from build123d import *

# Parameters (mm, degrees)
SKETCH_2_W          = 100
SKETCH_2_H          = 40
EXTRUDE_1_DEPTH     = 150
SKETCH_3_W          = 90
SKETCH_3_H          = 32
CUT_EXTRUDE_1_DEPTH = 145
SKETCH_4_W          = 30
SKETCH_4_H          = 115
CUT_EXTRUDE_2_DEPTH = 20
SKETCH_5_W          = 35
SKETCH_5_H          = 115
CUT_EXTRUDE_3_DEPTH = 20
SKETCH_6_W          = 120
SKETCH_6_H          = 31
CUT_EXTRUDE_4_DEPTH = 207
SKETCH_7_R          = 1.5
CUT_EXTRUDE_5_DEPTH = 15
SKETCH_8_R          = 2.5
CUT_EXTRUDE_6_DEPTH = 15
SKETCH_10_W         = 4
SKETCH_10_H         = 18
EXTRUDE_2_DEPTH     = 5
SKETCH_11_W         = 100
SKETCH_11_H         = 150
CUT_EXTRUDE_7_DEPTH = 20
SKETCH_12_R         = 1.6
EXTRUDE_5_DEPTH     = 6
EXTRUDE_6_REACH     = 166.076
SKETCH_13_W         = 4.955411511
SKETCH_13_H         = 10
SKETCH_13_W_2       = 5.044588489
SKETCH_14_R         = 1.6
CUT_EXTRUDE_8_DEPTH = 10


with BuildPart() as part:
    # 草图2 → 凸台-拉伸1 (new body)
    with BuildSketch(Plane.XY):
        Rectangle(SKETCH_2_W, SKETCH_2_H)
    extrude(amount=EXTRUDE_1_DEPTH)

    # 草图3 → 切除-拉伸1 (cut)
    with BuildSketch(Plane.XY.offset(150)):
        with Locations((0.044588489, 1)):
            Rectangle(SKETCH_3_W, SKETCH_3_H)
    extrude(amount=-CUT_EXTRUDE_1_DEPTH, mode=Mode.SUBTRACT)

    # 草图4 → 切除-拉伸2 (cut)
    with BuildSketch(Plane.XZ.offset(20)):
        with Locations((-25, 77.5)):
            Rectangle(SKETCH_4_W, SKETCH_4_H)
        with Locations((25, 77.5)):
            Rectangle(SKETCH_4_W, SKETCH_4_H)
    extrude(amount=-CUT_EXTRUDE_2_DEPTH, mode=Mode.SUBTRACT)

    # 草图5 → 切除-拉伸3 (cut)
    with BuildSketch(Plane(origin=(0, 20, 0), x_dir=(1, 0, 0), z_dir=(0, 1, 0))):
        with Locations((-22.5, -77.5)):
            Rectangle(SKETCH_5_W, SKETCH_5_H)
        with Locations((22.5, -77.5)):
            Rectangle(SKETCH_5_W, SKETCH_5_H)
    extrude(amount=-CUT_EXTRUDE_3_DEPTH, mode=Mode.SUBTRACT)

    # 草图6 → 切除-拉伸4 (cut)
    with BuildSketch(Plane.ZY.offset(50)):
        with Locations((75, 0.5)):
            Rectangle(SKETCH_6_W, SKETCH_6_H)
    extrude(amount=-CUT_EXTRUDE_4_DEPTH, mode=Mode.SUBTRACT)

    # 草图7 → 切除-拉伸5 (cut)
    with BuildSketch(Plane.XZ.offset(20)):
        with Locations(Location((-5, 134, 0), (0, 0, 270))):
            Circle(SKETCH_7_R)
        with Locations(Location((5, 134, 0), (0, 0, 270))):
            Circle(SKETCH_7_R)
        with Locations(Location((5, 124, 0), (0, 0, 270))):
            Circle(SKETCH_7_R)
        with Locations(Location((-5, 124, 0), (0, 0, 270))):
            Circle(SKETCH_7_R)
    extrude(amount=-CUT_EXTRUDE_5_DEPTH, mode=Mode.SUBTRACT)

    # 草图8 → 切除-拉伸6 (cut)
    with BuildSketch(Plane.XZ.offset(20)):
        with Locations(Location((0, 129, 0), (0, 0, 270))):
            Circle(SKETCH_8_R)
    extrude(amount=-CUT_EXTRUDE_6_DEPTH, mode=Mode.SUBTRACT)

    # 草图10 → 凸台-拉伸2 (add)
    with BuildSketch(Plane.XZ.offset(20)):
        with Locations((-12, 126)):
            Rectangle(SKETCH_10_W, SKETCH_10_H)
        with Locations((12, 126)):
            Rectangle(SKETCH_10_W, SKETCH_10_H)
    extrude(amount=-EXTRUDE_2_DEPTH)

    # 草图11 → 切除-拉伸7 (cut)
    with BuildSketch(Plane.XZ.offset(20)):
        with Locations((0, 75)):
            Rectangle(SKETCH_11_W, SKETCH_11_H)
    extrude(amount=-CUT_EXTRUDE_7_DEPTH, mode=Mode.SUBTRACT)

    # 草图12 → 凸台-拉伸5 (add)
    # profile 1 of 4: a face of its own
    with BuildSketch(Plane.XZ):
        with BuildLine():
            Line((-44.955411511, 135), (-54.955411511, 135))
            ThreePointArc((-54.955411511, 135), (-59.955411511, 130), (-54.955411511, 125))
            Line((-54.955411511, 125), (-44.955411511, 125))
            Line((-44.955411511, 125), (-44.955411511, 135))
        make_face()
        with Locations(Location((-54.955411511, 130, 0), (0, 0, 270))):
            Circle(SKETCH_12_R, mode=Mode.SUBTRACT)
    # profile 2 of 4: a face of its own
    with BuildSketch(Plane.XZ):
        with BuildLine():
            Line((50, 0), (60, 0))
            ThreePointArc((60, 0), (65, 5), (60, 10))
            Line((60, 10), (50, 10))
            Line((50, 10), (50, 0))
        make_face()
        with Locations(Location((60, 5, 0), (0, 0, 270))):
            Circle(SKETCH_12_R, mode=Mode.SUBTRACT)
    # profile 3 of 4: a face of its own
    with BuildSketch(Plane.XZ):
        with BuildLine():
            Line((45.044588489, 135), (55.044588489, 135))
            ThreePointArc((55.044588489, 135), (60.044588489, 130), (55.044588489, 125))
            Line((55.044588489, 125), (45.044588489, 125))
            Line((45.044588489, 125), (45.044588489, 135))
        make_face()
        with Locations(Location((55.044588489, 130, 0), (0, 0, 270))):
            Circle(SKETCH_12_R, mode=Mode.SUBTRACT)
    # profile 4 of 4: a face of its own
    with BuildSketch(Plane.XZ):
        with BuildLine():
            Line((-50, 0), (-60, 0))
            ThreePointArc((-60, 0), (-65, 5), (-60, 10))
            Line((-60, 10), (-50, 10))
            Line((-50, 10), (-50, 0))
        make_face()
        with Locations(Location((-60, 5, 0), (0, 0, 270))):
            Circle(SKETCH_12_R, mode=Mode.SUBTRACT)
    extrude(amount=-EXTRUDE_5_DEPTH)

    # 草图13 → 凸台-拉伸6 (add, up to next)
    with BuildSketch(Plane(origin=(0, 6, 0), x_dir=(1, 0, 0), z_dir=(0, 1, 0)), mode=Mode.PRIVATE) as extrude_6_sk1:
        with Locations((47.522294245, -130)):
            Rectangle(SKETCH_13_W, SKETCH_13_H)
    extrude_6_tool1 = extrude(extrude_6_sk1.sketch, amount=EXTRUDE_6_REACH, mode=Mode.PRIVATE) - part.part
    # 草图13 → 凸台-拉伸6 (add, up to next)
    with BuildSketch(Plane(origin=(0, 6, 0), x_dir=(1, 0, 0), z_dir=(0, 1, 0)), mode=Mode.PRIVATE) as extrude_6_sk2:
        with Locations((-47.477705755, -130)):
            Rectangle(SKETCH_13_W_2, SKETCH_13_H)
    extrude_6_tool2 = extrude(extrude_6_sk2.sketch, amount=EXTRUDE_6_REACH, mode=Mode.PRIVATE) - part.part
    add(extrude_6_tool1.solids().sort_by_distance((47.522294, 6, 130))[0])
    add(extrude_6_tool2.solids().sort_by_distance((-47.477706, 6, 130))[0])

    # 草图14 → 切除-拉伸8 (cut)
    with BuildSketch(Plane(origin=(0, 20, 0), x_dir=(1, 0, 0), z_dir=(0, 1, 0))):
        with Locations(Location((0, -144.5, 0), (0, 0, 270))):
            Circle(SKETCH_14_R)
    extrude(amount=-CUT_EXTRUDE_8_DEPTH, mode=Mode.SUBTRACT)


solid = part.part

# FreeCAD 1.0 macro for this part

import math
import FreeCAD as App
import Part
import Sketcher
from FreeCAD import Vector
Q = App.Units.Quantity

doc = App.newDocument("Part")
body = doc.addObject("PartDesign::Body", "Body")

# Sketch on XY plane
sketch1 = doc.addObject("Sketcher::SketchObject", "Sketch")
body.addObject(sketch1)
sketch1.AttachmentSupport = (doc.XY_Plane, [""])
sketch1.MapMode = "FlatFace"
sketch1.addGeometry([
    Part.LineSegment(Vector(-50, 20, 0), Vector(-50, -20, 0)),
    Part.LineSegment(Vector(-50, -20, 0), Vector(50, -20, 0)),
    Part.LineSegment(Vector(50, -20, 0), Vector(50, 20, 0)),
    Part.LineSegment(Vector(50, 20, 0), Vector(-50, 20, 0)),
], False)
sketch1.addConstraint([
    Sketcher.Constraint("Coincident", 0, 2, 1, 1),
    Sketcher.Constraint("Coincident", 1, 2, 2, 1),
    Sketcher.Constraint("Coincident", 2, 2, 3, 1),
    Sketcher.Constraint("Coincident", 3, 2, 0, 1),
    Sketcher.Constraint("Vertical", 0),
    Sketcher.Constraint("Horizontal", 1),
    Sketcher.Constraint("Vertical", 2),
    Sketcher.Constraint("Horizontal", 3),
    Sketcher.Constraint("Symmetric", 0, 2, 2, 2, -1, 1),
    Sketcher.Constraint("DistanceX", 1, 1, 1, 2, Q("100 mm")),
    Sketcher.Constraint("DistanceY", 0, 2, 0, 1, Q("40 mm")),
])
pad1 = doc.addObject("PartDesign::Pad", "Pad")
body.addObject(pad1)
pad1.Profile = sketch1
pad1.Length = 150

# Sketch on XY plane
sketch2 = doc.addObject("Sketcher::SketchObject", "Sketch001")
body.addObject(sketch2)
sketch2.AttachmentSupport = (doc.XY_Plane, [""])
sketch2.MapMode = "FlatFace"
sketch2.AttachmentOffset = App.Placement(Vector(0, 0, 150), App.Rotation())
sketch2.addGeometry([
    Part.LineSegment(Vector(-45, 17, 0), Vector(-45, -15, 0)),
    Part.LineSegment(Vector(-45, -15, 0), Vector(45, -15, 0)),
    Part.LineSegment(Vector(45, -15, 0), Vector(45, 17, 0)),
    Part.LineSegment(Vector(45, 17, 0), Vector(-45, 17, 0)),
], False)
sketch2.addConstraint([
    Sketcher.Constraint("Coincident", 0, 2, 1, 1),
    Sketcher.Constraint("Coincident", 1, 2, 2, 1),
    Sketcher.Constraint("Coincident", 2, 2, 3, 1),
    Sketcher.Constraint("Coincident", 3, 2, 0, 1),
    Sketcher.Constraint("Vertical", 0),
    Sketcher.Constraint("Horizontal", 1),
    Sketcher.Constraint("Vertical", 2),
    Sketcher.Constraint("Horizontal", 3),
    Sketcher.Constraint("DistanceX", 1, 1, 1, 2, Q("90 mm")),
    Sketcher.Constraint("DistanceY", 0, 2, 0, 1, Q("32 mm")),
    Sketcher.Constraint("DistanceY", 0, 2, -1, 1, Q("15 mm")),
    Sketcher.Constraint("DistanceX", 0, 2, -1, 1, Q("44.955412 mm")),
])
pocket1 = doc.addObject("PartDesign::Pocket", "Pocket")
body.addObject(pocket1)
pocket1.Profile = sketch2
pocket1.Length = 145

# Sketch on XZ plane
sketch3 = doc.addObject("Sketcher::SketchObject", "Sketch002")
body.addObject(sketch3)
sketch3.AttachmentSupport = (doc.XZ_Plane, [""])
sketch3.MapMode = "FlatFace"
sketch3.AttachmentOffset = App.Placement(Vector(0, 0, 20), App.Rotation())
sketch3.addGeometry([
    Part.LineSegment(Vector(-40, 135, 0), Vector(-40, 20, 0)),  # 0
    Part.LineSegment(Vector(-40, 20, 0), Vector(-10, 20, 0)),  # 1
    Part.LineSegment(Vector(-10, 20, 0), Vector(-10, 135, 0)),  # 2
    Part.LineSegment(Vector(-10, 135, 0), Vector(-40, 135, 0)),  # 3
    Part.LineSegment(Vector(10, 135, 0), Vector(10, 20, 0)),  # 4
    Part.LineSegment(Vector(10, 20, 0), Vector(40, 20, 0)),  # 5
    Part.LineSegment(Vector(40, 20, 0), Vector(40, 135, 0)),  # 6
    Part.LineSegment(Vector(40, 135, 0), Vector(10, 135, 0)),  # 7
], False)
sketch3.addConstraint([
    Sketcher.Constraint("Coincident", 0, 2, 1, 1),
    Sketcher.Constraint("Coincident", 1, 2, 2, 1),
    Sketcher.Constraint("Coincident", 2, 2, 3, 1),
    Sketcher.Constraint("Coincident", 3, 2, 0, 1),
    Sketcher.Constraint("Coincident", 4, 2, 5, 1),
    Sketcher.Constraint("Coincident", 5, 2, 6, 1),
    Sketcher.Constraint("Coincident", 6, 2, 7, 1),
    Sketcher.Constraint("Coincident", 7, 2, 4, 1),
    Sketcher.Constraint("Vertical", 0),
    Sketcher.Constraint("Horizontal", 1),
    Sketcher.Constraint("Vertical", 2),
    Sketcher.Constraint("Horizontal", 3),
    Sketcher.Constraint("Vertical", 4),
    Sketcher.Constraint("Horizontal", 5),
    Sketcher.Constraint("Vertical", 6),
    Sketcher.Constraint("Horizontal", 7),
    Sketcher.Constraint("Symmetric", 1, 2, 4, 2, -2),
    Sketcher.Constraint("Symmetric", 3, 2, 6, 2, -2),
    Sketcher.Constraint("DistanceX", 1, 1, 1, 2, Q("30 mm")),
    Sketcher.Constraint("DistanceY", 0, 2, 0, 1, Q("115 mm")),
    Sketcher.Constraint("DistanceX", 0, 2, -1, 1, Q("40 mm")),
    Sketcher.Constraint("DistanceY", -1, 1, 0, 2, Q("20 mm")),
])
pocket2 = doc.addObject("PartDesign::Pocket", "Pocket001")
body.addObject(pocket2)
pocket2.Profile = sketch3
pocket2.Length = 20

# Sketch on XZ plane
sketch4 = doc.addObject("Sketcher::SketchObject", "Sketch003")
body.addObject(sketch4)
sketch4.AttachmentSupport = (doc.XZ_Plane, [""])
sketch4.MapMode = "FlatFace"
sketch4.AttachmentOffset = App.Placement(Vector(0, 0, -20), App.Rotation())
sketch4.addGeometry([
    Part.LineSegment(Vector(-40, 20, 0), Vector(-40, 135, 0)),  # 0
    Part.LineSegment(Vector(-40, 135, 0), Vector(-5, 135, 0)),  # 1
    Part.LineSegment(Vector(-5, 135, 0), Vector(-5, 20, 0)),  # 2
    Part.LineSegment(Vector(-5, 20, 0), Vector(-40, 20, 0)),  # 3
    Part.LineSegment(Vector(5, 20, 0), Vector(5, 135, 0)),  # 4
    Part.LineSegment(Vector(5, 135, 0), Vector(40, 135, 0)),  # 5
    Part.LineSegment(Vector(40, 135, 0), Vector(40, 20, 0)),  # 6
    Part.LineSegment(Vector(40, 20, 0), Vector(5, 20, 0)),  # 7
], False)
sketch4.addConstraint([
    Sketcher.Constraint("Coincident", 0, 2, 1, 1),
    Sketcher.Constraint("Coincident", 1, 2, 2, 1),
    Sketcher.Constraint("Coincident", 2, 2, 3, 1),
    Sketcher.Constraint("Coincident", 3, 2, 0, 1),
    Sketcher.Constraint("Coincident", 4, 2, 5, 1),
    Sketcher.Constraint("Coincident", 5, 2, 6, 1),
    Sketcher.Constraint("Coincident", 6, 2, 7, 1),
    Sketcher.Constraint("Coincident", 7, 2, 4, 1),
    Sketcher.Constraint("Vertical", 0),
    Sketcher.Constraint("Horizontal", 1),
    Sketcher.Constraint("Vertical", 2),
    Sketcher.Constraint("Horizontal", 3),
    Sketcher.Constraint("Vertical", 4),
    Sketcher.Constraint("Horizontal", 5),
    Sketcher.Constraint("Vertical", 6),
    Sketcher.Constraint("Horizontal", 7),
    Sketcher.Constraint("Symmetric", 1, 2, 4, 2, -2),
    Sketcher.Constraint("Symmetric", 3, 2, 6, 2, -2),
    Sketcher.Constraint("DistanceX", 1, 1, 1, 2, Q("35 mm")),
    Sketcher.Constraint("DistanceY", 0, 1, 0, 2, Q("115 mm")),
    Sketcher.Constraint("DistanceX", 0, 2, -1, 1, Q("40 mm")),
    Sketcher.Constraint("DistanceY", -1, 1, 0, 2, Q("135 mm")),
])
pocket3 = doc.addObject("PartDesign::Pocket", "Pocket002")
body.addObject(pocket3)
pocket3.Profile = sketch4
pocket3.Length = 20
pocket3.Reversed = True

# Sketch on YZ plane
sketch5 = doc.addObject("Sketcher::SketchObject", "Sketch004")
body.addObject(sketch5)
sketch5.AttachmentSupport = (doc.YZ_Plane, [""])
sketch5.MapMode = "FlatFace"
sketch5.AttachmentOffset = App.Placement(Vector(0, 0, -50), App.Rotation())
sketch5.addGeometry([
    Part.LineSegment(Vector(16, 15, 0), Vector(-15, 15, 0)),
    Part.LineSegment(Vector(-15, 15, 0), Vector(-15, 135, 0)),
    Part.LineSegment(Vector(-15, 135, 0), Vector(16, 135, 0)),
    Part.LineSegment(Vector(16, 135, 0), Vector(16, 15, 0)),
], False)
sketch5.addConstraint([
    Sketcher.Constraint("Coincident", 0, 2, 1, 1),
    Sketcher.Constraint("Coincident", 1, 2, 2, 1),
    Sketcher.Constraint("Coincident", 2, 2, 3, 1),
    Sketcher.Constraint("Coincident", 3, 2, 0, 1),
    Sketcher.Constraint("Horizontal", 0),
    Sketcher.Constraint("Vertical", 1),
    Sketcher.Constraint("Horizontal", 2),
    Sketcher.Constraint("Vertical", 3),
    Sketcher.Constraint("DistanceX", 0, 2, 0, 1, Q("31 mm")),
    Sketcher.Constraint("DistanceY", 1, 1, 1, 2, Q("120 mm")),
    Sketcher.Constraint("DistanceX", 0, 2, -1, 1, Q("15 mm")),
    Sketcher.Constraint("DistanceY", -1, 1, 0, 2, Q("15 mm")),
])
pocket4 = doc.addObject("PartDesign::Pocket", "Pocket003")
body.addObject(pocket4)
pocket4.Profile = sketch5
pocket4.Length = 207
pocket4.Reversed = True

# Sketch on XZ plane
sketch6 = doc.addObject("Sketcher::SketchObject", "Sketch005")
body.addObject(sketch6)
sketch6.AttachmentSupport = (doc.XZ_Plane, [""])
sketch6.MapMode = "FlatFace"
sketch6.AttachmentOffset = App.Placement(Vector(0, 0, 20), App.Rotation())
sketch6.addGeometry([
    Part.Circle(Vector(-5, 134, 0), Vector(0, 0, 1), 1.5),
    Part.Circle(Vector(5, 134, 0), Vector(0, 0, 1), 1.5),
    Part.Circle(Vector(5, 124, 0), Vector(0, 0, 1), 1.5),
    Part.Circle(Vector(-5, 124, 0), Vector(0, 0, 1), 1.5),
], False)
sketch6.addConstraint([
    Sketcher.Constraint("Equal", 0, 1),
    Sketcher.Constraint("Equal", 1, 2),
    Sketcher.Constraint("Equal", 2, 3),
    Sketcher.Constraint("Symmetric", 0, 3, 1, 3, -2),
    Sketcher.Constraint("Symmetric", 2, 3, 3, 3, -2),
    Sketcher.Constraint("Vertical", 1, 3, 2, 3),
    Sketcher.Constraint("Diameter", 0, Q("3 mm")),
    Sketcher.Constraint("DistanceX", 0, 3, -1, 1, Q("5 mm")),
    Sketcher.Constraint("DistanceY", -1, 1, 0, 3, Q("134 mm")),
    Sketcher.Constraint("DistanceY", -1, 1, 2, 3, Q("124 mm")),
])
pocket5 = doc.addObject("PartDesign::Pocket", "Pocket004")
body.addObject(pocket5)
pocket5.Profile = sketch6
pocket5.Length = 15

# Sketch on XZ plane
sketch7 = doc.addObject("Sketcher::SketchObject", "Sketch006")
body.addObject(sketch7)
sketch7.AttachmentSupport = (doc.XZ_Plane, [""])
sketch7.MapMode = "FlatFace"
sketch7.AttachmentOffset = App.Placement(Vector(0, 0, 20), App.Rotation())
sketch7.addGeometry(Part.Circle(Vector(0, 129, 0), Vector(0, 0, 1), 2.5), False)
sketch7.addConstraint([
    Sketcher.Constraint("PointOnObject", 0, 3, -2),
    Sketcher.Constraint("Diameter", 0, Q("5 mm")),
    Sketcher.Constraint("DistanceY", -1, 1, 0, 3, Q("129 mm")),
])
pocket6 = doc.addObject("PartDesign::Pocket", "Pocket005")
body.addObject(pocket6)
pocket6.Profile = sketch7
pocket6.Length = 15

# Sketch on XZ plane
sketch8 = doc.addObject("Sketcher::SketchObject", "Sketch007")
body.addObject(sketch8)
sketch8.AttachmentSupport = (doc.XZ_Plane, [""])
sketch8.MapMode = "FlatFace"
sketch8.AttachmentOffset = App.Placement(Vector(0, 0, 20), App.Rotation())
sketch8.addGeometry([
    Part.LineSegment(Vector(-14, 135, 0), Vector(-14, 117, 0)),  # 0
    Part.LineSegment(Vector(-14, 117, 0), Vector(-10, 117, 0)),  # 1
    Part.LineSegment(Vector(-10, 117, 0), Vector(-10, 135, 0)),  # 2
    Part.LineSegment(Vector(-10, 135, 0), Vector(-14, 135, 0)),  # 3
    Part.LineSegment(Vector(10, 135, 0), Vector(10, 117, 0)),  # 4
    Part.LineSegment(Vector(10, 117, 0), Vector(14, 117, 0)),  # 5
    Part.LineSegment(Vector(14, 117, 0), Vector(14, 135, 0)),  # 6
    Part.LineSegment(Vector(14, 135, 0), Vector(10, 135, 0)),  # 7
], False)
sketch8.addConstraint([
    Sketcher.Constraint("Coincident", 0, 2, 1, 1),
    Sketcher.Constraint("Coincident", 1, 2, 2, 1),
    Sketcher.Constraint("Coincident", 2, 2, 3, 1),
    Sketcher.Constraint("Coincident", 3, 2, 0, 1),
    Sketcher.Constraint("Coincident", 4, 2, 5, 1),
    Sketcher.Constraint("Coincident", 5, 2, 6, 1),
    Sketcher.Constraint("Coincident", 6, 2, 7, 1),
    Sketcher.Constraint("Coincident", 7, 2, 4, 1),
    Sketcher.Constraint("Vertical", 0),
    Sketcher.Constraint("Horizontal", 1),
    Sketcher.Constraint("Vertical", 2),
    Sketcher.Constraint("Horizontal", 3),
    Sketcher.Constraint("Vertical", 4),
    Sketcher.Constraint("Horizontal", 5),
    Sketcher.Constraint("Vertical", 6),
    Sketcher.Constraint("Horizontal", 7),
    Sketcher.Constraint("Symmetric", 1, 2, 4, 2, -2),
    Sketcher.Constraint("Symmetric", 3, 2, 6, 2, -2),
    Sketcher.Constraint("DistanceX", 1, 1, 1, 2, Q("4 mm")),
    Sketcher.Constraint("DistanceY", 0, 2, 0, 1, Q("18 mm")),
    Sketcher.Constraint("DistanceX", 0, 2, -1, 1, Q("14 mm")),
    Sketcher.Constraint("DistanceY", -1, 1, 0, 2, Q("117 mm")),
])
pad2 = doc.addObject("PartDesign::Pad", "Pad001")
body.addObject(pad2)
pad2.Profile = sketch8
pad2.Length = 5
pad2.Reversed = True

# Sketch on XZ plane
sketch9 = doc.addObject("Sketcher::SketchObject", "Sketch008")
body.addObject(sketch9)
sketch9.AttachmentSupport = (doc.XZ_Plane, [""])
sketch9.MapMode = "FlatFace"
sketch9.AttachmentOffset = App.Placement(Vector(0, 0, 20), App.Rotation())
sketch9.addGeometry([
    Part.LineSegment(Vector(-50, 150, 0), Vector(-50, 0, 0)),
    Part.LineSegment(Vector(-50, 0, 0), Vector(50, 0, 0)),
    Part.LineSegment(Vector(50, 0, 0), Vector(50, 150, 0)),
    Part.LineSegment(Vector(50, 150, 0), Vector(-50, 150, 0)),
], False)
sketch9.addConstraint([
    Sketcher.Constraint("Coincident", 0, 2, 1, 1),
    Sketcher.Constraint("Coincident", 1, 2, 2, 1),
    Sketcher.Constraint("Coincident", 2, 2, 3, 1),
    Sketcher.Constraint("Coincident", 3, 2, 0, 1),
    Sketcher.Constraint("Vertical", 0),
    Sketcher.Constraint("Horizontal", 1),
    Sketcher.Constraint("Vertical", 2),
    Sketcher.Constraint("Horizontal", 3),
    Sketcher.Constraint("Symmetric", 0, 2, 1, 2, -1, 1),
    Sketcher.Constraint("DistanceX", 1, 1, 1, 2, Q("100 mm")),
    Sketcher.Constraint("DistanceY", 0, 2, 0, 1, Q("150 mm")),
])
pocket7 = doc.addObject("PartDesign::Pocket", "Pocket006")
body.addObject(pocket7)
pocket7.Profile = sketch9
pocket7.Length = 20

# Sketch on XZ plane
sketch10 = doc.addObject("Sketcher::SketchObject", "Sketch009")
body.addObject(sketch10)
sketch10.AttachmentSupport = (doc.XZ_Plane, [""])
sketch10.MapMode = "FlatFace"
sketch10.addGeometry([
    Part.LineSegment(Vector(-45, 135, 0), Vector(-55, 135, 0)),  # 0
    Part.ArcOfCircle(Part.Circle(Vector(-55, 130, 0), Vector(0, 0, 1), 5), math.radians(90), math.radians(270)),  # 1
    Part.LineSegment(Vector(-55, 125, 0), Vector(-45, 125, 0)),  # 2
    Part.LineSegment(Vector(-45, 125, 0), Vector(-45, 135, 0)),  # 3
    Part.Circle(Vector(-55, 130, 0), Vector(0, 0, 1), 1.6),  # 4
    Part.LineSegment(Vector(50, 0, 0), Vector(60, 0, 0)),  # 5
    Part.ArcOfCircle(Part.Circle(Vector(60, 5, 0), Vector(0, 0, 1), 5), math.radians(-90), math.radians(90)),  # 6
    Part.LineSegment(Vector(60, 10, 0), Vector(50, 10, 0)),  # 7
    Part.LineSegment(Vector(50, 10, 0), Vector(50, 0, 0)),  # 8
    Part.Circle(Vector(60, 5, 0), Vector(0, 0, 1), 1.6),  # 9
    Part.LineSegment(Vector(55, 135, 0), Vector(45, 135, 0)),  # 10
    Part.LineSegment(Vector(45, 135, 0), Vector(45, 125, 0)),  # 11
    Part.LineSegment(Vector(45, 125, 0), Vector(55, 125, 0)),  # 12
    Part.ArcOfCircle(Part.Circle(Vector(55, 130, 0), Vector(0, 0, 1), 5), math.radians(-90), math.radians(90)),  # 13
    Part.Circle(Vector(55, 130, 0), Vector(0, 0, 1), 1.6),  # 14
    Part.LineSegment(Vector(-60, 0, 0), Vector(-50, 0, 0)),  # 15
    Part.LineSegment(Vector(-50, 0, 0), Vector(-50, 10, 0)),  # 16
    Part.LineSegment(Vector(-50, 10, 0), Vector(-60, 10, 0)),  # 17
    Part.ArcOfCircle(Part.Circle(Vector(-60, 5, 0), Vector(0, 0, 1), 5), math.radians(90), math.radians(270)),  # 18
    Part.Circle(Vector(-60, 5, 0), Vector(0, 0, 1), 1.6),  # 19
], False)
sketch10.addConstraint([
    Sketcher.Constraint("Tangent", 0, 2, 1, 1),
    Sketcher.Constraint("Tangent", 1, 2, 2, 1),
    Sketcher.Constraint("Coincident", 2, 2, 3, 1),
    Sketcher.Constraint("Coincident", 3, 2, 0, 1),
    Sketcher.Constraint("Tangent", 5, 2, 6, 1),
    Sketcher.Constraint("Tangent", 6, 2, 7, 1),
    Sketcher.Constraint("Coincident", 7, 2, 8, 1),
    Sketcher.Constraint("Coincident", 8, 2, 5, 1),
    Sketcher.Constraint("Coincident", 10, 2, 11, 1),
    Sketcher.Constraint("Coincident", 11, 2, 12, 1),
    Sketcher.Constraint("Tangent", 12, 2, 13, 1),
    Sketcher.Constraint("Tangent", 13, 2, 10, 1),
    Sketcher.Constraint("Coincident", 15, 2, 16, 1),
    Sketcher.Constraint("Coincident", 16, 2, 17, 1),
    Sketcher.Constraint("Tangent", 17, 2, 18, 1),
    Sketcher.Constraint("Tangent", 18, 2, 15, 1),
    Sketcher.Constraint("Horizontal", 0),
    Sketcher.Constraint("Horizontal", 2),
    Sketcher.Constraint("Vertical", 3),
    Sketcher.Constraint("Horizontal", 5),
    Sketcher.Constraint("Horizontal", 7),
    Sketcher.Constraint("Vertical", 8),
    Sketcher.Constraint("Horizontal", 10),
    Sketcher.Constraint("Vertical", 11),
    Sketcher.Constraint("Horizontal", 12),
    Sketcher.Constraint("Horizontal", 15),
    Sketcher.Constraint("Vertical", 16),
    Sketcher.Constraint("Horizontal", 17),
    Sketcher.Constraint("Coincident", 4, 3, 1, 3),
    Sketcher.Constraint("Coincident", 9, 3, 6, 3),
    Sketcher.Constraint("Coincident", 14, 3, 13, 3),
    Sketcher.Constraint("Coincident", 19, 3, 18, 3),
    Sketcher.Constraint("Equal", 1, 6),
    Sketcher.Constraint("Equal", 4, 9),
    Sketcher.Constraint("Equal", 6, 13),
    Sketcher.Constraint("Equal", 9, 14),
    Sketcher.Constraint("Equal", 13, 18),
    Sketcher.Constraint("Equal", 14, 19),
    Sketcher.Constraint("Symmetric", 8, 2, 15, 2, -1, 1),
    Sketcher.Constraint("Symmetric", 6, 3, 18, 3, -2),
    Sketcher.Constraint("Horizontal", 4, 3, 13, 3),
    Sketcher.Constraint("Equal", 2, 5),
    Sketcher.Constraint("Equal", 7, 10),
    Sketcher.Constraint("Equal", 17, 3),
    Sketcher.Constraint("Radius", 1, Q("5 mm")),
    Sketcher.Constraint("Diameter", 4, Q("3.2 mm")),
    Sketcher.Constraint("DistanceY", -1, 1, 1, 3, Q("130 mm")),
    Sketcher.Constraint("DistanceX", -1, 1, 6, 3, Q("60 mm")),
    Sketcher.Constraint("DistanceX", 1, 3, 13, 3, Q("110 mm")),
    Sketcher.Constraint("DistanceX", 1, 3, -1, 1, Q("54.955412 mm")),
])
pad3 = doc.addObject("PartDesign::Pad", "Pad002")
body.addObject(pad3)
pad3.Profile = sketch10
pad3.Length = 6
pad3.Reversed = True

# Sketch on XZ plane
sketch11 = doc.addObject("Sketcher::SketchObject", "Sketch010")
body.addObject(sketch11)
sketch11.AttachmentSupport = (doc.XZ_Plane, [""])
sketch11.MapMode = "FlatFace"
sketch11.AttachmentOffset = App.Placement(Vector(0, 0, -6), App.Rotation())
sketch11.addGeometry([
    Part.LineSegment(Vector(45, 125, 0), Vector(45, 135, 0)),
    Part.LineSegment(Vector(45, 135, 0), Vector(50, 135, 0)),
    Part.LineSegment(Vector(50, 135, 0), Vector(50, 125, 0)),
    Part.LineSegment(Vector(50, 125, 0), Vector(45, 125, 0)),
], False)
sketch11.addConstraint([
    Sketcher.Constraint("Coincident", 0, 2, 1, 1),
    Sketcher.Constraint("Coincident", 1, 2, 2, 1),
    Sketcher.Constraint("Coincident", 2, 2, 3, 1),
    Sketcher.Constraint("Coincident", 3, 2, 0, 1),
    Sketcher.Constraint("Vertical", 0),
    Sketcher.Constraint("Horizontal", 1),
    Sketcher.Constraint("Vertical", 2),
    Sketcher.Constraint("Horizontal", 3),
    Sketcher.Constraint("DistanceY", 0, 1, 0, 2, Q("10 mm")),
    Sketcher.Constraint("DistanceY", -1, 1, 0, 2, Q("135 mm")),
    Sketcher.Constraint("DistanceX", -1, 1, 1, 2, Q("50 mm")),
    Sketcher.Constraint("DistanceX", 1, 1, 1, 2, Q("4.955412 mm")),
])
pad4 = doc.addObject("PartDesign::Pad", "Pad003")
body.addObject(pad4)
pad4.Profile = sketch11
pad4.Type = "UpToFirst"
pad4.Reversed = True

# Sketch on XZ plane
sketch12 = doc.addObject("Sketcher::SketchObject", "Sketch011")
body.addObject(sketch12)
sketch12.AttachmentSupport = (doc.XZ_Plane, [""])
sketch12.MapMode = "FlatFace"
sketch12.AttachmentOffset = App.Placement(Vector(0, 0, -6), App.Rotation())
sketch12.addGeometry([
    Part.LineSegment(Vector(-50, 125, 0), Vector(-50, 135, 0)),
    Part.LineSegment(Vector(-50, 135, 0), Vector(-45, 135, 0)),
    Part.LineSegment(Vector(-45, 135, 0), Vector(-45, 125, 0)),
    Part.LineSegment(Vector(-45, 125, 0), Vector(-50, 125, 0)),
], False)
sketch12.addConstraint([
    Sketcher.Constraint("Coincident", 0, 2, 1, 1),
    Sketcher.Constraint("Coincident", 1, 2, 2, 1),
    Sketcher.Constraint("Coincident", 2, 2, 3, 1),
    Sketcher.Constraint("Coincident", 3, 2, 0, 1),
    Sketcher.Constraint("Vertical", 0),
    Sketcher.Constraint("Horizontal", 1),
    Sketcher.Constraint("Vertical", 2),
    Sketcher.Constraint("Horizontal", 3),
    Sketcher.Constraint("DistanceY", 0, 1, 0, 2, Q("10 mm")),
    Sketcher.Constraint("DistanceX", 0, 2, -1, 1, Q("50 mm")),
    Sketcher.Constraint("DistanceY", -1, 1, 0, 2, Q("135 mm")),
    Sketcher.Constraint("DistanceX", 1, 1, 1, 2, Q("5.044588 mm")),
])
pad5 = doc.addObject("PartDesign::Pad", "Pad004")
body.addObject(pad5)
pad5.Profile = sketch12
pad5.Type = "UpToFirst"
pad5.Reversed = True

# Sketch on XZ plane
sketch13 = doc.addObject("Sketcher::SketchObject", "Sketch012")
body.addObject(sketch13)
sketch13.AttachmentSupport = (doc.XZ_Plane, [""])
sketch13.MapMode = "FlatFace"
sketch13.AttachmentOffset = App.Placement(Vector(0, 0, -20), App.Rotation())
sketch13.addGeometry(Part.Circle(Vector(0, 144.5, 0), Vector(0, 0, 1), 1.6), False)
sketch13.addConstraint([
    Sketcher.Constraint("PointOnObject", 0, 3, -2),
    Sketcher.Constraint("Diameter", 0, Q("3.2 mm")),
    Sketcher.Constraint("DistanceY", -1, 1, 0, 3, Q("144.5 mm")),
])
pocket8 = doc.addObject("PartDesign::Pocket", "Pocket007")
body.addObject(pocket8)
pocket8.Profile = sketch13
pocket8.Length = 10
pocket8.Reversed = True

doc.recompute()
